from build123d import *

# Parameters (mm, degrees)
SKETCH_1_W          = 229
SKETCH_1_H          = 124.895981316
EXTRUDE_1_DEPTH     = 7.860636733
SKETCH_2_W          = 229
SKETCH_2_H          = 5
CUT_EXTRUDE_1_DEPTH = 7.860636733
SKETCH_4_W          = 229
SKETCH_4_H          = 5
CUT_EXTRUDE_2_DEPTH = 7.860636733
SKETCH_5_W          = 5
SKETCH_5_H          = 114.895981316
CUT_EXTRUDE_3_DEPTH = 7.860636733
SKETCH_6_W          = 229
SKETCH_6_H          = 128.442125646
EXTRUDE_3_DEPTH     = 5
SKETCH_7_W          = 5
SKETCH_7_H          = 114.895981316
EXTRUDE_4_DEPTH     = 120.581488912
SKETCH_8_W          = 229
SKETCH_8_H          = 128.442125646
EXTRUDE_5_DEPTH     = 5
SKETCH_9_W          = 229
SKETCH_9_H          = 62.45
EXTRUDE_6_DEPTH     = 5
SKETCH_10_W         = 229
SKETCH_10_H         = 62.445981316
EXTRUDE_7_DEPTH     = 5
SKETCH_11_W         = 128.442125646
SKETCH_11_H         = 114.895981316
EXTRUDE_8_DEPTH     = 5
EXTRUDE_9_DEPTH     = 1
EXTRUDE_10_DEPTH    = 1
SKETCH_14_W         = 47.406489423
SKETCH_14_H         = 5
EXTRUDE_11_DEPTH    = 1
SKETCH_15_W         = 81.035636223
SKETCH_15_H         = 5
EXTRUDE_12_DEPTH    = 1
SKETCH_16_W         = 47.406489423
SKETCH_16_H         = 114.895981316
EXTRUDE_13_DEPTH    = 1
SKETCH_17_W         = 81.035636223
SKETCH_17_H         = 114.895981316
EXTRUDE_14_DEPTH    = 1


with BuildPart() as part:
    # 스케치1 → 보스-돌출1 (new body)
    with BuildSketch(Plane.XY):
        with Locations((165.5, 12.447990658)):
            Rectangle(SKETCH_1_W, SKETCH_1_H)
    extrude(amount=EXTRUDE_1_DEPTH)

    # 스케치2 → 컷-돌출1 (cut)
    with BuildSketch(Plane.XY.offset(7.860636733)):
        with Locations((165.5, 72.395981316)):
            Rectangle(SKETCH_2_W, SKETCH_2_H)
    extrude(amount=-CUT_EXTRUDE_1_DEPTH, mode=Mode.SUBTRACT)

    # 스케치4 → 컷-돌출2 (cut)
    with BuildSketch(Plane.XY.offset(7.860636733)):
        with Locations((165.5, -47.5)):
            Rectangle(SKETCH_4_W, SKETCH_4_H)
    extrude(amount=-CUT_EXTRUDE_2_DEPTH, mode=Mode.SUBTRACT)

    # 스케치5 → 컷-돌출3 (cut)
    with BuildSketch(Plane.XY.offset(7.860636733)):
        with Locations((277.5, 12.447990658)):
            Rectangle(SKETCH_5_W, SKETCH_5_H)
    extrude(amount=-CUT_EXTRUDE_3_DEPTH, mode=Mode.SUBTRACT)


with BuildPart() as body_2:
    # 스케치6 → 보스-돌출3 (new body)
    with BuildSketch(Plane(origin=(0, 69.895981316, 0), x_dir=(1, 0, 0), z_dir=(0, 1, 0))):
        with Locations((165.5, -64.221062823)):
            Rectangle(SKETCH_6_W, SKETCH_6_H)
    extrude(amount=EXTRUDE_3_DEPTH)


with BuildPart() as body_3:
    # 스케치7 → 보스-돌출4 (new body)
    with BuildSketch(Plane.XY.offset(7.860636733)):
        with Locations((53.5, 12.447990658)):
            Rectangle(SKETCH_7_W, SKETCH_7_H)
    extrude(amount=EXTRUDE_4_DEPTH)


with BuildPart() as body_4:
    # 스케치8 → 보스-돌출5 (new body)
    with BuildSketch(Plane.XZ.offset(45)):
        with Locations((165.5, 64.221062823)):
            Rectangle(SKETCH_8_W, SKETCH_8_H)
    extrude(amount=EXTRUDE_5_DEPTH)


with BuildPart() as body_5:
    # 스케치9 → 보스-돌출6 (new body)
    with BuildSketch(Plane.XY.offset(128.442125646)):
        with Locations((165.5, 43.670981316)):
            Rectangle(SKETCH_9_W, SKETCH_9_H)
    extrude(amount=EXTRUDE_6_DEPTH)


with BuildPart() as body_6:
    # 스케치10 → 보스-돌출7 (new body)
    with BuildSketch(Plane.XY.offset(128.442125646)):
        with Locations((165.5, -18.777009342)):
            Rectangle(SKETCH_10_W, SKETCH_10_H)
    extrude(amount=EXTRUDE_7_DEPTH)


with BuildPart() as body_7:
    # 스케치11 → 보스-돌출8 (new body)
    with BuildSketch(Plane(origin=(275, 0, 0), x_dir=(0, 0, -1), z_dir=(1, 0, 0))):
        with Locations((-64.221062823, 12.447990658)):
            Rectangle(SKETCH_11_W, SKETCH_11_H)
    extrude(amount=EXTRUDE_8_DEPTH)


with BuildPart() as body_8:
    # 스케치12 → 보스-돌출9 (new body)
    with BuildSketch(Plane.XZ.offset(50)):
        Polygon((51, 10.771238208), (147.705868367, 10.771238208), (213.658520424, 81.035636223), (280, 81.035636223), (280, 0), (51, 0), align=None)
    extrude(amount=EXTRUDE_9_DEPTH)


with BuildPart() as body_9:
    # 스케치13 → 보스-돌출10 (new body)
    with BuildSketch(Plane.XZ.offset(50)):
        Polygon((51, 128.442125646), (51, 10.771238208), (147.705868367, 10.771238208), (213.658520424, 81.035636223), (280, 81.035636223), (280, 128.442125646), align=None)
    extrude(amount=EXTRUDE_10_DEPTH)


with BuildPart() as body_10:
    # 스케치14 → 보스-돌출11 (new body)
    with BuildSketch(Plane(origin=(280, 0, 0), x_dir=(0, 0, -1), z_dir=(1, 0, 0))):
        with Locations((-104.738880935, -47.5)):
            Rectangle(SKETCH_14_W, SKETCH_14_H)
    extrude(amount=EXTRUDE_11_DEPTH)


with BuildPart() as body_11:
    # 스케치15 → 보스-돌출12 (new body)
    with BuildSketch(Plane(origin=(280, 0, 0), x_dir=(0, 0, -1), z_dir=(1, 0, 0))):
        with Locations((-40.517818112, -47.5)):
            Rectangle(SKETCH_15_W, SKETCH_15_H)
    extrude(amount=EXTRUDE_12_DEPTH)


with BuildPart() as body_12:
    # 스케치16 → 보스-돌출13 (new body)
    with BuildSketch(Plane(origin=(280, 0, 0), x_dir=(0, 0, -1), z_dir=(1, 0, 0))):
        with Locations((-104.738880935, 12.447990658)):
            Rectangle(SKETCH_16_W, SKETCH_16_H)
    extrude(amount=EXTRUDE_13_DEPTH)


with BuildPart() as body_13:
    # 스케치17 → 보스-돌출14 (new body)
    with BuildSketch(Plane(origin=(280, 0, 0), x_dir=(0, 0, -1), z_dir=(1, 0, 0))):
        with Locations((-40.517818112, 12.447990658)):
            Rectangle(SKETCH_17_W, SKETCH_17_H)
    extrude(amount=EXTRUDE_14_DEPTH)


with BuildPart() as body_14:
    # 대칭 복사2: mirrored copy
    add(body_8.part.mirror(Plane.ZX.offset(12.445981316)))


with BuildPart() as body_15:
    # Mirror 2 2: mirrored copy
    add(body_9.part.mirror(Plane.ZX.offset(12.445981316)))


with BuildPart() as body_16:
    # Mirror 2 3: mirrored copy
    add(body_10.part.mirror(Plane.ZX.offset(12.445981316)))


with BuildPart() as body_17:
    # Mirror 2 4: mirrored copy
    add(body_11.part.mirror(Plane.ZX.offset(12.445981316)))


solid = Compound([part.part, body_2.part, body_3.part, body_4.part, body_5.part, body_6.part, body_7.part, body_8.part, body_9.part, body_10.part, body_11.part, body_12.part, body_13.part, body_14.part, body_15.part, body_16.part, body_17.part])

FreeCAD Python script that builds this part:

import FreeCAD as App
import Part
import Sketcher
Q = App.Units.Quantity

doc = App.newDocument("Part")
body = doc.addObject("PartDesign::Body", "Body")

# Sketch on XY plane
sketch1 = body.newObject("Sketcher::SketchObject", "Sketch")
sketch1.AttachmentSupport = (doc.getObject("XY_Plane"), [""])
sketch1.MapMode = "FlatFace"
sketch1.addGeometry(Part.LineSegment(App.Vector(51, 75, 0), App.Vector(51, -50, 0)), False)
sketch1.addGeometry(Part.LineSegment(App.Vector(51, -50, 0), App.Vector(280, -50, 0)), False)
sketch1.addGeometry(Part.LineSegment(App.Vector(280, -50, 0), App.Vector(280, 75, 0)), False)
sketch1.addGeometry(Part.LineSegment(App.Vector(280, 75, 0), App.Vector(51, 75, 0)), False)
sketch1.addConstraint(Sketcher.Constraint("Coincident", 0, 2, 1, 1))
sketch1.addConstraint(Sketcher.Constraint("Coincident", 1, 2, 2, 1))
sketch1.addConstraint(Sketcher.Constraint("Coincident", 2, 2, 3, 1))
sketch1.addConstraint(Sketcher.Constraint("Coincident", 3, 2, 0, 1))
sketch1.addConstraint(Sketcher.Constraint("Vertical", 0))
sketch1.addConstraint(Sketcher.Constraint("Horizontal", 1))
sketch1.addConstraint(Sketcher.Constraint("Vertical", 2))
sketch1.addConstraint(Sketcher.Constraint("Horizontal", 3))
sketch1.addConstraint(Sketcher.Constraint("DistanceX", 1, 1, 1, 2, Q("229 mm")))
sketch1.addConstraint(Sketcher.Constraint("DistanceX", -1, 1, 0, 2, Q("51 mm")))
sketch1.addConstraint(Sketcher.Constraint("DistanceY", 0, 2, -1, 1, Q("50 mm")))
sketch1.addConstraint(Sketcher.Constraint("DistanceY", 0, 2, 0, 1, Q("124.895981 mm")))
pad1 = body.newObject("PartDesign::Pad", "Pad")
pad1.Profile = sketch1
pad1.Length = 7.860637

# Sketch on XY plane
sketch2 = body.newObject("Sketcher::SketchObject", "Sketch001")
sketch2.AttachmentSupport = (doc.getObject("XY_Plane"), [""])
sketch2.MapMode = "FlatFace"
sketch2.AttachmentOffset = App.Placement(App.Vector(0, 0, 7.860637), App.Rotation())
sketch2.addGeometry(Part.LineSegment(App.Vector(51, 75, 0), App.Vector(51, 70, 0)), False)
sketch2.addGeometry(Part.LineSegment(App.Vector(51, 70, 0), App.Vector(280, 70, 0)), False)
sketch2.addGeometry(Part.LineSegment(App.Vector(280, 70, 0), App.Vector(280, 75, 0)), False)
sketch2.addGeometry(Part.LineSegment(App.Vector(280, 75, 0), App.Vector(51, 75, 0)), False)
sketch2.addConstraint(Sketcher.Constraint("Coincident", 0, 2, 1, 1))
sketch2.addConstraint(Sketcher.Constraint("Coincident", 1, 2, 2, 1))
sketch2.addConstraint(Sketcher.Constraint("Coincident", 2, 2, 3, 1))
sketch2.addConstraint(Sketcher.Constraint("Coincident", 3, 2, 0, 1))
sketch2.addConstraint(Sketcher.Constraint("Vertical", 0))
sketch2.addConstraint(Sketcher.Constraint("Horizontal", 1))
sketch2.addConstraint(Sketcher.Constraint("Vertical", 2))
sketch2.addConstraint(Sketcher.Constraint("Horizontal", 3))
sketch2.addConstraint(Sketcher.Constraint("DistanceX", 1, 1, 1, 2, Q("229 mm")))
sketch2.addConstraint(Sketcher.Constraint("DistanceY", 0, 2, 0, 1, Q("5 mm")))
sketch2.addConstraint(Sketcher.Constraint("DistanceX", -1, 1, 0, 2, Q("51 mm")))
sketch2.addConstraint(Sketcher.Constraint("DistanceY", -1, 1, 0, 2, Q("69.895981 mm")))
pocket1 = body.newObject("PartDesign::Pocket", "Pocket")
pocket1.Profile = sketch2
pocket1.Length = 7.860637

# Sketch on XY plane
sketch3 = body.newObject("Sketcher::SketchObject", "Sketch002")
sketch3.AttachmentSupport = (doc.getObject("XY_Plane"), [""])
sketch3.MapMode = "FlatFace"
sketch3.AttachmentOffset = App.Placement(App.Vector(0, 0, 7.860637), App.Rotation())
sketch3.addGeometry(Part.LineSegment(App.Vector(51, -45, 0), App.Vector(51, -50, 0)), False)
sketch3.addGeometry(Part.LineSegment(App.Vector(51, -50, 0), App.Vector(280, -50, 0)), False)
sketch3.addGeometry(Part.LineSegment(App.Vector(280, -50, 0), App.Vector(280, -45, 0)), False)
sketch3.addGeometry(Part.LineSegment(App.Vector(280, -45, 0), App.Vector(51, -45, 0)), False)
sketch3.addConstraint(Sketcher.Constraint("Coincident", 0, 2, 1, 1))
sketch3.addConstraint(Sketcher.Constraint("Coincident", 1, 2, 2, 1))
sketch3.addConstraint(Sketcher.Constraint("Coincident", 2, 2, 3, 1))
sketch3.addConstraint(Sketcher.Constraint("Coincident", 3, 2, 0, 1))
sketch3.addConstraint(Sketcher.Constraint("Vertical", 0))
sketch3.addConstraint(Sketcher.Constraint("Horizontal", 1))
sketch3.addConstraint(Sketcher.Constraint("Vertical", 2))
sketch3.addConstraint(Sketcher.Constraint("Horizontal", 3))
sketch3.addConstraint(Sketcher.Constraint("DistanceX", 1, 1, 1, 2, Q("229 mm")))
sketch3.addConstraint(Sketcher.Constraint("DistanceY", 0, 2, 0, 1, Q("5 mm")))
sketch3.addConstraint(Sketcher.Constraint("DistanceX", -1, 1, 0, 2, Q("51 mm")))
sketch3.addConstraint(Sketcher.Constraint("DistanceY", 0, 2, -1, 1, Q("50 mm")))
pocket2 = body.newObject("PartDesign::Pocket", "Pocket001")
pocket2.Profile = sketch3
pocket2.Length = 7.860637

# Sketch on XY plane
sketch4 = body.newObject("Sketcher::SketchObject", "Sketch003")
sketch4.AttachmentSupport = (doc.getObject("XY_Plane"), [""])
sketch4.MapMode = "FlatFace"
sketch4.AttachmentOffset = App.Placement(App.Vector(0, 0, 7.860637), App.Rotation())
sketch4.addGeometry(Part.LineSegment(App.Vector(275, 70, 0), App.Vector(275, -45, 0)), False)
sketch4.addGeometry(Part.LineSegment(App.Vector(275, -45, 0), App.Vector(280, -45, 0)), False)
sketch4.addGeometry(Part.LineSegment(App.Vector(280, -45, 0), App.Vector(280, 70, 0)), False)
sketch4.addGeometry(Part.LineSegment(App.Vector(280, 70, 0), App.Vector(275, 70, 0)), False)
sketch4.addConstraint(Sketcher.Constraint("Coincident", 0, 2, 1, 1))
sketch4.addConstraint(Sketcher.Constraint("Coincident", 1, 2, 2, 1))
sketch4.addConstraint(Sketcher.Constraint("Coincident", 2, 2, 3, 1))
sketch4.addConstraint(Sketcher.Constraint("Coincident", 3, 2, 0, 1))
sketch4.addConstraint(Sketcher.Constraint("Vertical", 0))
sketch4.addConstraint(Sketcher.Constraint("Horizontal", 1))
sketch4.addConstraint(Sketcher.Constraint("Vertical", 2))
sketch4.addConstraint(Sketcher.Constraint("Horizontal", 3))
sketch4.addConstraint(Sketcher.Constraint("DistanceX", 1, 1, 1, 2, Q("5 mm")))
sketch4.addConstraint(Sketcher.Constraint("DistanceX", -1, 1, 0, 2, Q("275 mm")))
sketch4.addConstraint(Sketcher.Constraint("DistanceY", 0, 2, -1, 1, Q("45 mm")))
sketch4.addConstraint(Sketcher.Constraint("DistanceY", 0, 2, 0, 1, Q("114.895981 mm")))
pocket3 = body.newObject("PartDesign::Pocket", "Pocket002")
pocket3.Profile = sketch4
pocket3.Length = 7.860637
body2 = doc.addObject("PartDesign::Body", "Body001")

# Sketch on XZ plane
sketch5 = body2.newObject("Sketcher::SketchObject", "Sketch004")
sketch5.AttachmentSupport = (doc.getObject("XZ_Plane001"), [""])
sketch5.MapMode = "FlatFace"
sketch5.AttachmentOffset = App.Placement(App.Vector(0, 0, -69.895981), App.Rotation())
sketch5.addGeometry(Part.LineSegment(App.Vector(51, 0, 0), App.Vector(51, 128, 0)), False)
sketch5.addGeometry(Part.LineSegment(App.Vector(51, 128, 0), App.Vector(280, 128, 0)), False)
sketch5.addGeometry(Part.LineSegment(App.Vector(280, 128, 0), App.Vector(280, 0, 0)), False)
sketch5.addGeometry(Part.LineSegment(App.Vector(280, 0, 0), App.Vector(51, 0, 0)), False)
sketch5.addConstraint(Sketcher.Constraint("Coincident", 0, 2, 1, 1))
sketch5.addConstraint(Sketcher.Constraint("Coincident", 1, 2, 2, 1))
sketch5.addConstraint(Sketcher.Constraint("Coincident", 2, 2, 3, 1))
sketch5.addConstraint(Sketcher.Constraint("Coincident", 3, 2, 0, 1))
sketch5.addConstraint(Sketcher.Constraint("Vertical", 0))
sketch5.addConstraint(Sketcher.Constraint("Horizontal", 1))
sketch5.addConstraint(Sketcher.Constraint("Vertical", 2))
sketch5.addConstraint(Sketcher.Constraint("Horizontal", 3))
sketch5.addConstraint(Sketcher.Constraint("PointOnObject", 2, 2, -1))
sketch5.addConstraint(Sketcher.Constraint("DistanceX", 1, 1, 1, 2, Q("229 mm")))
sketch5.addConstraint(Sketcher.Constraint("DistanceX", -1, 1, 0, 2, Q("51 mm")))
sketch5.addConstraint(Sketcher.Constraint("DistanceY", 0, 1, 0, 2, Q("128.442126 mm")))
pad2 = body2.newObject("PartDesign::Pad", "Pad001")
pad2.Profile = sketch5
pad2.Length = 5
pad2.Reversed = True
body3 = doc.addObject("PartDesign::Body", "Body002")

# Sketch on XY plane
sketch6 = body3.newObject("Sketcher::SketchObject", "Sketch005")
sketch6.AttachmentSupport = (doc.getObject("XY_Plane002"), [""])
sketch6.MapMode = "FlatFace"
sketch6.AttachmentOffset = App.Placement(App.Vector(0, 0, 7.860637), App.Rotation())
sketch6.addGeometry(Part.LineSegment(App.Vector(51, 70, 0), App.Vector(51, -45, 0)), False)
sketch6.addGeometry(Part.LineSegment(App.Vector(51, -45, 0), App.Vector(56, -45, 0)), False)
sketch6.addGeometry(Part.LineSegment(App.Vector(56, -45, 0), App.Vector(56, 70, 0)), False)
sketch6.addGeometry(Part.LineSegment(App.Vector(56, 70, 0), App.Vector(51, 70, 0)), False)
sketch6.addConstraint(Sketcher.Constraint("Coincident", 0, 2, 1, 1))
sketch6.addConstraint(Sketcher.Constraint("Coincident", 1, 2, 2, 1))
sketch6.addConstraint(Sketcher.Constraint("Coincident", 2, 2, 3, 1))
sketch6.addConstraint(Sketcher.Constraint("Coincident", 3, 2, 0, 1))
sketch6.addConstraint(Sketcher.Constraint("Vertical", 0))
sketch6.addConstraint(Sketcher.Constraint("Horizontal", 1))
sketch6.addConstraint(Sketcher.Constraint("Vertical", 2))
sketch6.addConstraint(Sketcher.Constraint("Horizontal", 3))
sketch6.addConstraint(Sketcher.Constraint("DistanceX", 1, 1, 1, 2, Q("5 mm")))
sketch6.addConstraint(Sketcher.Constraint("DistanceX", -1, 1, 0, 2, Q("51 mm")))
sketch6.addConstraint(Sketcher.Constraint("DistanceY", 0, 2, -1, 1, Q("45 mm")))
sketch6.addConstraint(Sketcher.Constraint("DistanceY", 0, 2, 0, 1, Q("114.895981 mm")))
pad3 = body3.newObject("PartDesign::Pad", "Pad002")
pad3.Profile = sketch6
pad3.Length = 120.581489
body4 = doc.addObject("PartDesign::Body", "Body003")

# Sketch on XZ plane
sketch7 = body4.newObject("Sketcher::SketchObject", "Sketch006")
sketch7.AttachmentSupport = (doc.getObject("XZ_Plane003"), [""])
sketch7.MapMode = "FlatFace"
sketch7.AttachmentOffset = App.Placement(App.Vector(0, 0, 45), App.Rotation())
sketch7.addGeometry(Part.LineSegment(App.Vector(51, 128, 0), App.Vector(51, 0, 0)), False)
sketch7.addGeometry(Part.LineSegment(App.Vector(51, 0, 0), App.Vector(280, 0, 0)), False)
sketch7.addGeometry(Part.LineSegment(App.Vector(280, 0, 0), App.Vector(280, 128, 0)), False)
sketch7.addGeometry(Part.LineSegment(App.Vector(280, 128, 0), App.Vector(51, 128, 0)), False)
sketch7.addConstraint(Sketcher.Constraint("Coincident", 0, 2, 1, 1))
sketch7.addConstraint(Sketcher.Constraint("Coincident", 1, 2, 2, 1))
sketch7.addConstraint(Sketcher.Constraint("Coincident", 2, 2, 3, 1))
sketch7.addConstraint(Sketcher.Constraint("Coincident", 3, 2, 0, 1))
sketch7.addConstraint(Sketcher.Constraint("Vertical", 0))
sketch7.addConstraint(Sketcher.Constraint("Horizontal", 1))
sketch7.addConstraint(Sketcher.Constraint("Vertical", 2))
sketch7.addConstraint(Sketcher.Constraint("Horizontal", 3))
sketch7.addConstraint(Sketcher.Constraint("PointOnObject", 0, 2, -1))
sketch7.addConstraint(Sketcher.Constraint("DistanceX", 1, 1, 1, 2, Q("229 mm")))
sketch7.addConstraint(Sketcher.Constraint("DistanceX", -1, 1, 0, 2, Q("51 mm")))
sketch7.addConstraint(Sketcher.Constraint("DistanceY", 0, 2, 0, 1, Q("128.442126 mm")))
pad4 = body4.newObject("PartDesign::Pad", "Pad003")
pad4.Profile = sketch7
pad4.Length = 5
body5 = doc.addObject("PartDesign::Body", "Body004")

# Sketch on XY plane
sketch8 = body5.newObject("Sketcher::SketchObject", "Sketch007")
sketch8.AttachmentSupport = (doc.getObject("XY_Plane004"), [""])
sketch8.MapMode = "FlatFace"
sketch8.AttachmentOffset = App.Placement(App.Vector(0, 0, 128.442126), App.Rotation())
sketch8.addGeometry(Part.LineSegment(App.Vector(51, 75, 0), App.Vector(51, 12, 0)), False)
sketch8.addGeometry(Part.LineSegment(App.Vector(51, 12, 0), App.Vector(280, 12, 0)), False)
sketch8.addGeometry(Part.LineSegment(App.Vector(280, 12, 0), App.Vector(280, 75, 0)), False)
sketch8.addGeometry(Part.LineSegment(App.Vector(280, 75, 0), App.Vector(51, 75, 0)), False)
sketch8.addConstraint(Sketcher.Constraint("Coincident", 0, 2, 1, 1))
sketch8.addConstraint(Sketcher.Constraint("Coincident", 1, 2, 2, 1))
sketch8.addConstraint(Sketcher.Constraint("Coincident", 2, 2, 3, 1))
sketch8.addConstraint(Sketcher.Constraint("Coincident", 3, 2, 0, 1))
sketch8.addConstraint(Sketcher.Constraint("Vertical", 0))
sketch8.addConstraint(Sketcher.Constraint("Horizontal", 1))
sketch8.addConstraint(Sketcher.Constraint("Vertical", 2))
sketch8.addConstraint(Sketcher.Constraint("Horizontal", 3))
sketch8.addConstraint(Sketcher.Constraint("DistanceX", 1, 1, 1, 2, Q("229 mm")))
sketch8.addConstraint(Sketcher.Constraint("DistanceX", -1, 1, 0, 2, Q("51 mm")))
sketch8.addConstraint(Sketcher.Constraint("DistanceY", 0, 2, 0, 1, Q("62.45 mm")))
sketch8.addConstraint(Sketcher.Constraint("DistanceY", -1, 1, 0, 2, Q("12.445981 mm")))
pad5 = body5.newObject("PartDesign::Pad", "Pad004")
pad5.Profile = sketch8
pad5.Length = 5
body6 = doc.addObject("PartDesign::Body", "Body005")

# Sketch on XY plane
sketch9 = body6.newObject("Sketcher::SketchObject", "Sketch008")
sketch9.AttachmentSupport = (doc.getObject("XY_Plane005"), [""])
sketch9.MapMode = "FlatFace"
sketch9.AttachmentOffset = App.Placement(App.Vector(0, 0, 128.442126), App.Rotation())
sketch9.addGeometry(Part.LineSegment(App.Vector(51, 12, 0), App.Vector(51, -50, 0)), False)
sketch9.addGeometry(Part.LineSegment(App.Vector(51, -50, 0), App.Vector(280, -50, 0)), False)
sketch9.addGeometry(Part.LineSegment(App.Vector(280, -50, 0), App.Vector(280, 12, 0)), False)
sketch9.addGeometry(Part.LineSegment(App.Vector(280, 12, 0), App.Vector(51, 12, 0)), False)
sketch9.addConstraint(Sketcher.Constraint("Coincident", 0, 2, 1, 1))
sketch9.addConstraint(Sketcher.Constraint("Coincident", 1, 2, 2, 1))
sketch9.addConstraint(Sketcher.Constraint("Coincident", 2, 2, 3, 1))
sketch9.addConstraint(Sketcher.Constraint("Coincident", 3, 2, 0, 1))
sketch9.addConstraint(Sketcher.Constraint("Vertical", 0))
sketch9.addConstraint(Sketcher.Constraint("Horizontal", 1))
sketch9.addConstraint(Sketcher.Constraint("Vertical", 2))
sketch9.addConstraint(Sketcher.Constraint("Horizontal", 3))
sketch9.addConstraint(Sketcher.Constraint("DistanceX", 1, 1, 1, 2, Q("229 mm")))
sketch9.addConstraint(Sketcher.Constraint("DistanceX", -1, 1, 0, 2, Q("51 mm")))
sketch9.addConstraint(Sketcher.Constraint("DistanceY", 0, 2, -1, 1, Q("50 mm")))
sketch9.addConstraint(Sketcher.Constraint("DistanceY", 0, 2, 0, 1, Q("62.445981 mm")))
pad6 = body6.newObject("PartDesign::Pad", "Pad005")
pad6.Profile = sketch9
pad6.Length = 5
body7 = doc.addObject("PartDesign::Body", "Body006")

# Sketch on YZ plane
sketch10 = body7.newObject("Sketcher::SketchObject", "Sketch009")
sketch10.AttachmentSupport = (doc.getObject("YZ_Plane006"), [""])
sketch10.MapMode = "FlatFace"
sketch10.AttachmentOffset = App.Placement(App.Vector(0, 0, 275), App.Rotation())
sketch10.addGeometry(Part.LineSegment(App.Vector(70, 128, 0), App.Vector(-45, 128, 0)), False)
sketch10.addGeometry(Part.LineSegment(App.Vector(-45, 128, 0), App.Vector(-45, 0, 0)), False)
sketch10.addGeometry(Part.LineSegment(App.Vector(-45, 0, 0), App.Vector(70, 0, 0)), False)
sketch10.addGeometry(Part.LineSegment(App.Vector(70, 0, 0), App.Vector(70, 128, 0)), False)
sketch10.addConstraint(Sketcher.Constraint("Coincident", 0, 2, 1, 1))
sketch10.addConstraint(Sketcher.Constraint("Coincident", 1, 2, 2, 1))
sketch10.addConstraint(Sketcher.Constraint("Coincident", 2, 2, 3, 1))
sketch10.addConstraint(Sketcher.Constraint("Coincident", 3, 2, 0, 1))
sketch10.addConstraint(Sketcher.Constraint("Horizontal", 0))
sketch10.addConstraint(Sketcher.Constraint("Vertical", 1))
sketch10.addConstraint(Sketcher.Constraint("Horizontal", 2))
sketch10.addConstraint(Sketcher.Constraint("Vertical", 3))
sketch10.addConstraint(Sketcher.Constraint("PointOnObject", 1, 2, -1))
sketch10.addConstraint(Sketcher.Constraint("DistanceX", 0, 2, -1, 1, Q("45 mm")))
sketch10.addConstraint(Sketcher.Constraint("DistanceX", 0, 2, 0, 1, Q("114.895981 mm")))
sketch10.addConstraint(Sketcher.Constraint("DistanceY", 1, 2, 1, 1, Q("128.442126 mm")))
pad7 = body7.newObject("PartDesign::Pad", "Pad006")
pad7.Profile = sketch10
pad7.Length = 5
body8 = doc.addObject("PartDesign::Body", "Body007")

# Sketch on XZ plane
sketch11 = body8.newObject("Sketcher::SketchObject", "Sketch010")
sketch11.AttachmentSupport = (doc.getObject("XZ_Plane007"), [""])
sketch11.MapMode = "FlatFace"
sketch11.AttachmentOffset = App.Placement(App.Vector(0, 0, 50), App.Rotation())
sketch11.addGeometry(Part.LineSegment(App.Vector(148, 11, 0), App.Vector(51, 11, 0)), False)
sketch11.addGeometry(Part.LineSegment(App.Vector(51, 11, 0), App.Vector(51, 0, 0)), False)
sketch11.addGeometry(Part.LineSegment(App.Vector(51, 0, 0), App.Vector(280, 0, 0)), False)
sketch11.addGeometry(Part.LineSegment(App.Vector(280, 0, 0), App.Vector(280, 81, 0)), False)
sketch11.addGeometry(Part.LineSegment(App.Vector(280, 81, 0), App.Vector(214, 81, 0)), False)
sketch11.addGeometry(Part.LineSegment(App.Vector(214, 81, 0), App.Vector(148, 11, 0)), False)
sketch11.addConstraint(Sketcher.Constraint("Coincident", 0, 2, 1, 1))
sketch11.addConstraint(Sketcher.Constraint("Coincident", 1, 2, 2, 1))
sketch11.addConstraint(Sketcher.Constraint("Coincident", 2, 2, 3, 1))
sketch11.addConstraint(Sketcher.Constraint("Coincident", 3, 2, 4, 1))
sketch11.addConstraint(Sketcher.Constraint("Coincident", 4, 2, 5, 1))
sketch11.addConstraint(Sketcher.Constraint("Coincident", 5, 2, 0, 1))
sketch11.addConstraint(Sketcher.Constraint("Horizontal", 0))
sketch11.addConstraint(Sketcher.Constraint("Vertical", 1))
sketch11.addConstraint(Sketcher.Constraint("Horizontal", 2))
sketch11.addConstraint(Sketcher.Constraint("Vertical", 3))
sketch11.addConstraint(Sketcher.Constraint("Horizontal", 4))
sketch11.addConstraint(Sketcher.Constraint("PointOnObject", 1, 2, -1))
sketch11.addConstraint(Sketcher.Constraint("DistanceX", 2, 1, 2, 2, Q("229 mm")))
sketch11.addConstraint(Sketcher.Constraint("DistanceX", -1, 1, 0, 2, Q("51 mm")))
sketch11.addConstraint(Sketcher.Constraint("DistanceX", 0, 2, 0, 1, Q("96.705868 mm")))
sketch11.addConstraint(Sketcher.Constraint("DistanceX", 4, 2, 4, 1, Q("66.34148 mm")))
sketch11.addConstraint(Sketcher.Constraint("DistanceY", 1, 2, 1, 1, Q("10.771238 mm")))
sketch11.addConstraint(Sketcher.Constraint("DistanceY", 0, 2, 3, 2, Q("70.264398 mm")))
pad8 = body8.newObject("PartDesign::Pad", "Pad007")
pad8.Profile = sketch11
pad8.Length = 1
body9 = doc.addObject("PartDesign::Body", "Body008")

# Sketch on XZ plane
sketch12 = body9.newObject("Sketcher::SketchObject", "Sketch011")
sketch12.AttachmentSupport = (doc.getObject("XZ_Plane008"), [""])
sketch12.MapMode = "FlatFace"
sketch12.AttachmentOffset = App.Placement(App.Vector(0, 0, 50), App.Rotation())
sketch12.addGeometry(Part.LineSegment(App.Vector(51, 128, 0), App.Vector(51, 11, 0)), False)
sketch12.addGeometry(Part.LineSegment(App.Vector(51, 11, 0), App.Vector(148, 11, 0)), False)
sketch12.addGeometry(Part.LineSegment(App.Vector(148, 11, 0), App.Vector(214, 81, 0)), False)
sketch12.addGeometry(Part.LineSegment(App.Vector(214, 81, 0), App.Vector(280, 81, 0)), False)
sketch12.addGeometry(Part.LineSegment(App.Vector(280, 81, 0), App.Vector(280, 128, 0)), False)
sketch12.addGeometry(Part.LineSegment(App.Vector(280, 128, 0), App.Vector(51, 128, 0)), False)
sketch12.addConstraint(Sketcher.Constraint("Coincident", 0, 2, 1, 1))
sketch12.addConstraint(Sketcher.Constraint("Coincident", 1, 2, 2, 1))
sketch12.addConstraint(Sketcher.Constraint("Coincident", 2, 2, 3, 1))
sketch12.addConstraint(Sketcher.Constraint("Coincident", 3, 2, 4, 1))
sketch12.addConstraint(Sketcher.Constraint("Coincident", 4, 2, 5, 1))
sketch12.addConstraint(Sketcher.Constraint("Coincident", 5, 2, 0, 1))
sketch12.addConstraint(Sketcher.Constraint("Vertical", 0))
sketch12.addConstraint(Sketcher.Constraint("Horizontal", 1))
sketch12.addConstraint(Sketcher.Constraint("Horizontal", 3))
sketch12.addConstraint(Sketcher.Constraint("Vertical", 4))
sketch12.addConstraint(Sketcher.Constraint("Horizontal", 5))
sketch12.addConstraint(Sketcher.Constraint("DistanceX", 5, 2, 5, 1, Q("229 mm")))
sketch12.addConstraint(Sketcher.Constraint("DistanceX", -1, 1, 0, 2, Q("51 mm")))
sketch12.addConstraint(Sketcher.Constraint("DistanceX", 1, 1, 1, 2, Q("96.705868 mm")))
sketch12.addConstraint(Sketcher.Constraint("DistanceX", 3, 1, 3, 2, Q("66.34148 mm")))
sketch12.addConstraint(Sketcher.Constraint("DistanceY", 4, 1, 4, 2, Q("47.406489 mm")))
sketch12.addConstraint(Sketcher.Constraint("DistanceY", 1, 2, 2, 2, Q("70.264398 mm")))
sketch12.addConstraint(Sketcher.Constraint("DistanceY", -1, 1, 0, 2, Q("10.771238 mm")))
pad9 = body9.newObject("PartDesign::Pad", "Pad008")
pad9.Profile = sketch12
pad9.Length = 1
body10 = doc.addObject("PartDesign::Body", "Body009")

# Sketch on YZ plane
sketch13 = body10.newObject("Sketcher::SketchObject", "Sketch012")
sketch13.AttachmentSupport = (doc.getObject("YZ_Plane009"), [""])
sketch13.MapMode = "FlatFace"
sketch13.AttachmentOffset = App.Placement(App.Vector(0, 0, 280), App.Rotation())
sketch13.addGeometry(Part.LineSegment(App.Vector(-45, 128, 0), App.Vector(-50, 128, 0)), False)
sketch13.addGeometry(Part.LineSegment(App.Vector(-50, 128, 0), App.Vector(-50, 81, 0)), False)
sketch13.addGeometry(Part.LineSegment(App.Vector(-50, 81, 0), App.Vector(-45, 81, 0)), False)
sketch13.addGeometry(Part.LineSegment(App.Vector(-45, 81, 0), App.Vector(-45, 128, 0)), False)
sketch13.addConstraint(Sketcher.Constraint("Coincident", 0, 2, 1, 1))
sketch13.addConstraint(Sketcher.Constraint("Coincident", 1, 2, 2, 1))
sketch13.addConstraint(Sketcher.Constraint("Coincident", 2, 2, 3, 1))
sketch13.addConstraint(Sketcher.Constraint("Coincident", 3, 2, 0, 1))
sketch13.addConstraint(Sketcher.Constraint("Horizontal", 0))
sketch13.addConstraint(Sketcher.Constraint("Vertical", 1))
sketch13.addConstraint(Sketcher.Constraint("Horizontal", 2))
sketch13.addConstraint(Sketcher.Constraint("Vertical", 3))
sketch13.addConstraint(Sketcher.Constraint("DistanceX", 0, 2, 0, 1, Q("5 mm")))
sketch13.addConstraint(Sketcher.Constraint("DistanceX", 0, 2, -1, 1, Q("50 mm")))
sketch13.addConstraint(Sketcher.Constraint("DistanceY", 1, 2, 1, 1, Q("47.406489 mm")))
sketch13.addConstraint(Sketcher.Constraint("DistanceY", -1, 1, 0, 2, Q("128.442126 mm")))
pad10 = body10.newObject("PartDesign::Pad", "Pad009")
pad10.Profile = sketch13
pad10.Length = 1
body11 = doc.addObject("PartDesign::Body", "Body010")

# Sketch on YZ plane
sketch14 = body11.newObject("Sketcher::SketchObject", "Sketch013")
sketch14.AttachmentSupport = (doc.getObject("YZ_Plane010"), [""])
sketch14.MapMode = "FlatFace"
sketch14.AttachmentOffset = App.Placement(App.Vector(0, 0, 280), App.Rotation())
sketch14.addGeometry(Part.LineSegment(App.Vector(-45, 81, 0), App.Vector(-50, 81, 0)), False)
sketch14.addGeometry(Part.LineSegment(App.Vector(-50, 81, 0), App.Vector(-50, 0, 0)), False)
sketch14.addGeometry(Part.LineSegment(App.Vector(-50, 0, 0), App.Vector(-45, 0, 0)), False)
sketch14.addGeometry(Part.LineSegment(App.Vector(-45, 0, 0), App.Vector(-45, 81, 0)), False)
sketch14.addConstraint(Sketcher.Constraint("Coincident", 0, 2, 1, 1))
sketch14.addConstraint(Sketcher.Constraint("Coincident", 1, 2, 2, 1))
sketch14.addConstraint(Sketcher.Constraint("Coincident", 2, 2, 3, 1))
sketch14.addConstraint(Sketcher.Constraint("Coincident", 3, 2, 0, 1))
sketch14.addConstraint(Sketcher.Constraint("Horizontal", 0))
sketch14.addConstraint(Sketcher.Constraint("Vertical", 1))
sketch14.addConstraint(Sketcher.Constraint("Horizontal", 2))
sketch14.addConstraint(Sketcher.Constraint("Vertical", 3))
sketch14.addConstraint(Sketcher.Constraint("PointOnObject", 1, 2, -1))
sketch14.addConstraint(Sketcher.Constraint("DistanceX", 0, 2, 0, 1, Q("5 mm")))
sketch14.addConstraint(Sketcher.Constraint("DistanceX", 0, 2, -1, 1, Q("50 mm")))
sketch14.addConstraint(Sketcher.Constraint("DistanceY", 1, 2, 1, 1, Q("81.035636 mm")))
pad11 = body11.newObject("PartDesign::Pad", "Pad010")
pad11.Profile = sketch14
pad11.Length = 1
body12 = doc.addObject("PartDesign::Body", "Body011")

# Sketch on YZ plane
sketch15 = body12.newObject("Sketcher::SketchObject", "Sketch014")
sketch15.AttachmentSupport = (doc.getObject("YZ_Plane011"), [""])
sketch15.MapMode = "FlatFace"
sketch15.AttachmentOffset = App.Placement(App.Vector(0, 0, 280), App.Rotation())
sketch15.addGeometry(Part.LineSegment(App.Vector(70, 128, 0), App.Vector(-45, 128, 0)), False)
sketch15.addGeometry(Part.LineSegment(App.Vector(-45, 128, 0), App.Vector(-45, 81, 0)), False)
sketch15.addGeometry(Part.LineSegment(App.Vector(-45, 81, 0), App.Vector(70, 81, 0)), False)
sketch15.addGeometry(Part.LineSegment(App.Vector(70, 81, 0), App.Vector(70, 128, 0)), False)
sketch15.addConstraint(Sketcher.Constraint("Coincident", 0, 2, 1, 1))
sketch15.addConstraint(Sketcher.Constraint("Coincident", 1, 2, 2, 1))
sketch15.addConstraint(Sketcher.Constraint("Coincident", 2, 2, 3, 1))
sketch15.addConstraint(Sketcher.Constraint("Coincident", 3, 2, 0, 1))
sketch15.addConstraint(Sketcher.Constraint("Horizontal", 0))
sketch15.addConstraint(Sketcher.Constraint("Vertical", 1))
sketch15.addConstraint(Sketcher.Constraint("Horizontal", 2))
sketch15.addConstraint(Sketcher.Constraint("Vertical", 3))
sketch15.addConstraint(Sketcher.Constraint("DistanceX", 0, 2, -1, 1, Q("45 mm")))
sketch15.addConstraint(Sketcher.Constraint("DistanceX", 0, 2, 0, 1, Q("114.895981 mm")))
sketch15.addConstraint(Sketcher.Constraint("DistanceY", 1, 2, 1, 1, Q("47.406489 mm")))
sketch15.addConstraint(Sketcher.Constraint("DistanceY", -1, 1, 0, 2, Q("128.442126 mm")))
pad12 = body12.newObject("PartDesign::Pad", "Pad011")
pad12.Profile = sketch15
pad12.Length = 1
body13 = doc.addObject("PartDesign::Body", "Body012")

# Sketch on YZ plane
sketch16 = body13.newObject("Sketcher::SketchObject", "Sketch015")
sketch16.AttachmentSupport = (doc.getObject("YZ_Plane012"), [""])
sketch16.MapMode = "FlatFace"
sketch16.AttachmentOffset = App.Placement(App.Vector(0, 0, 280), App.Rotation())
sketch16.addGeometry(Part.LineSegment(App.Vector(70, 81, 0), App.Vector(-45, 81, 0)), False)
sketch16.addGeometry(Part.LineSegment(App.Vector(-45, 81, 0), App.Vector(-45, 0, 0)), False)
sketch16.addGeometry(Part.LineSegment(App.Vector(-45, 0, 0), App.Vector(70, 0, 0)), False)
sketch16.addGeometry(Part.LineSegment(App.Vector(70, 0, 0), App.Vector(70, 81, 0)), False)
sketch16.addConstraint(Sketcher.Constraint("Coincident", 0, 2, 1, 1))
sketch16.addConstraint(Sketcher.Constraint("Coincident", 1, 2, 2, 1))
sketch16.addConstraint(Sketcher.Constraint("Coincident", 2, 2, 3, 1))
sketch16.addConstraint(Sketcher.Constraint("Coincident", 3, 2, 0, 1))
sketch16.addConstraint(Sketcher.Constraint("Horizontal", 0))
sketch16.addConstraint(Sketcher.Constraint("Vertical", 1))
sketch16.addConstraint(Sketcher.Constraint("Horizontal", 2))
sketch16.addConstraint(Sketcher.Constraint("Vertical", 3))
sketch16.addConstraint(Sketcher.Constraint("PointOnObject", 1, 2, -1))
sketch16.addConstraint(Sketcher.Constraint("DistanceX", 0, 2, -1, 1, Q("45 mm")))
sketch16.addConstraint(Sketcher.Constraint("DistanceX", 0, 2, 0, 1, Q("114.895981 mm")))
sketch16.addConstraint(Sketcher.Constraint("DistanceY", 1, 2, 1, 1, Q("81.035636 mm")))
pad13 = body13.newObject("PartDesign::Pad", "Pad012")
pad13.Profile = sketch16
pad13.Length = 1
body14 = doc.addObject("PartDesign::Body", "Body013")
doc.recompute()

mirroring = doc.addObject("Part::Mirroring", "Mirroring")
mirroring.Source = body8
mirroring.Base = App.Vector(0, 12.445981, 0)
mirroring.Normal = App.Vector(0, 1, 0)
body14.BaseFeature = mirroring
doc.recompute()
body15 = doc.addObject("PartDesign::Body", "Body014")
doc.recompute()

mirroring2 = doc.addObject("Part::Mirroring", "Mirroring001")
mirroring2.Source = body9
mirroring2.Base = App.Vector(0, 12.445981, 0)
mirroring2.Normal = App.Vector(0, 1, 0)
body15.BaseFeature = mirroring2
doc.recompute()
body16 = doc.addObject("PartDesign::Body", "Body015")
doc.recompute()

mirroring3 = doc.addObject("Part::Mirroring", "Mirroring002")
mirroring3.Source = body10
mirroring3.Base = App.Vector(0, 12.445981, 0)
mirroring3.Normal = App.Vector(0, 1, 0)
body16.BaseFeature = mirroring3
doc.recompute()
body17 = doc.addObject("PartDesign::Body", "Body016")
doc.recompute()

mirroring4 = doc.addObject("Part::Mirroring", "Mirroring003")
mirroring4.Source = body11
mirroring4.Base = App.Vector(0, 12.445981, 0)
mirroring4.Normal = App.Vector(0, 1, 0)
body17.BaseFeature = mirroring4
doc.recompute()

doc.recompute()
